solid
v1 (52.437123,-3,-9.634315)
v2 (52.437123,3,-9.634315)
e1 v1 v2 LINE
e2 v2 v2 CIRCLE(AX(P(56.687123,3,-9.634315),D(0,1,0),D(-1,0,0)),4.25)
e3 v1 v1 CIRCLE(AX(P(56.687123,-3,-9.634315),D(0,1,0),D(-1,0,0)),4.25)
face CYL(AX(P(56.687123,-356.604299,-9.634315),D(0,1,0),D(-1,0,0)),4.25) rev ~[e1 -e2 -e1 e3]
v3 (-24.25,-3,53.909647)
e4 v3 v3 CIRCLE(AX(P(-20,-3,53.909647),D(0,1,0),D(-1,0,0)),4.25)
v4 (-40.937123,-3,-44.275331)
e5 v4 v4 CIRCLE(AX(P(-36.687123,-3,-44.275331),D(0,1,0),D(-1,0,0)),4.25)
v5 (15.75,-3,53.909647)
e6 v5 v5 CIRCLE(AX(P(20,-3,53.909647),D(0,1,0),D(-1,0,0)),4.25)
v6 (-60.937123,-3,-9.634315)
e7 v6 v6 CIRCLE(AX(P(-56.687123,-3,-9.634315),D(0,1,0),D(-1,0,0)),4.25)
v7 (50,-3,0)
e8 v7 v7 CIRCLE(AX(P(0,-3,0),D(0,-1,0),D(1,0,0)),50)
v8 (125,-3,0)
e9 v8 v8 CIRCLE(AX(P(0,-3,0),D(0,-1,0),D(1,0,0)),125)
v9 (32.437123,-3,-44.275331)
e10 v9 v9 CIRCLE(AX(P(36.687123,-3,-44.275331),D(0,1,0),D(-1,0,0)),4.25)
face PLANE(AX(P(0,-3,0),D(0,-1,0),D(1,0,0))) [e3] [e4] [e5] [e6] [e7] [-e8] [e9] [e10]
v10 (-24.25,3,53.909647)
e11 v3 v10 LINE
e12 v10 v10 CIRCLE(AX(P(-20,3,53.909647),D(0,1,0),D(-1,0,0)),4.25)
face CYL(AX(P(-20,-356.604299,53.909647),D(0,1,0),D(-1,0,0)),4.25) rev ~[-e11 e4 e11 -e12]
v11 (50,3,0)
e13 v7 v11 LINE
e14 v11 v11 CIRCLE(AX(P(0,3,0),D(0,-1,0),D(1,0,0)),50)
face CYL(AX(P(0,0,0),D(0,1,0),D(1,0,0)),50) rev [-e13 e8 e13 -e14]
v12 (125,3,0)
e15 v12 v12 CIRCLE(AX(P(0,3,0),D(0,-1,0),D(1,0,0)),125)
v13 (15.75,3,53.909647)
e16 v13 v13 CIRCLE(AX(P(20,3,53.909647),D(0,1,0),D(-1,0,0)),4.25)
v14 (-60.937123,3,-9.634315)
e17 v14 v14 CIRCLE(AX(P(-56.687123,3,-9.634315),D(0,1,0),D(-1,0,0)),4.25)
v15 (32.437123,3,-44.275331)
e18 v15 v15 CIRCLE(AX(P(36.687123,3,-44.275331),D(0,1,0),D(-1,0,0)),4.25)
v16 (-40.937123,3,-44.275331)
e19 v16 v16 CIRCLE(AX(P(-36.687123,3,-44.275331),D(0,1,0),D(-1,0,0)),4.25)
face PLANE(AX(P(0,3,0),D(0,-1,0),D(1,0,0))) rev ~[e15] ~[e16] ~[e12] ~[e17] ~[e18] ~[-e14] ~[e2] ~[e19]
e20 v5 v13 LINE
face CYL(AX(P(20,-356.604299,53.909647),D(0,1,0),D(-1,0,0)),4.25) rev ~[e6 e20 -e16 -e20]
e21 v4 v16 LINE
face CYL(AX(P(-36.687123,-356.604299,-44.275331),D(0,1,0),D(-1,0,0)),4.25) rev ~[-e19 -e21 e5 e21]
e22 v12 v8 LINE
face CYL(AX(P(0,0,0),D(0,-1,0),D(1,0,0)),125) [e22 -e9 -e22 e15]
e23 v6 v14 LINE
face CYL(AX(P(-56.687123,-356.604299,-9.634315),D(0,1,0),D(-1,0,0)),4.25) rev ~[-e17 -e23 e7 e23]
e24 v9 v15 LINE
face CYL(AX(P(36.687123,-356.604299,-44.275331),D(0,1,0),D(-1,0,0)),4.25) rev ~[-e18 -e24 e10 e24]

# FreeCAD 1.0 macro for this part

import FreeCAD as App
import Part
import Sketcher

V = App.Vector

doc = App.newDocument("Part")
body = doc.addObject("PartDesign::Body", "Body")

sketch1 = body.newObject("Sketcher::SketchObject", "Sketch")
sketch1.AttachmentSupport = (doc.getObject("XZ_Plane"), [""])
sketch1.MapMode = "FlatFace"
sketch1.addGeometry([
    Part.Circle(V(0, 0, 0), V(0, 0, 1), 125),
    Part.Circle(V(0, 0, 0), V(0, 0, 1), 50),
], False)
sketch1.addConstraint([
    Sketcher.Constraint("Coincident", 0, 3, -1, 1),
    Sketcher.Constraint("Coincident", 1, 3, -1, 1),
    Sketcher.Constraint("Diameter", 0, 250.0),
    Sketcher.Constraint("Diameter", 1, 100.0),
])
pad1 = body.newObject("PartDesign::Pad", "Pad")
pad1.Profile = sketch1
pad1.Length = 6
pad1.Midplane = True

sketch2 = body.newObject("Sketcher::SketchObject", "Sketch001")
sketch2.AttachmentSupport = (doc.getObject("XZ_Plane"), [""])
sketch2.MapMode = "FlatFace"
sketch2.AttachmentOffset = App.Placement(V(0, 0, 3), App.Rotation())
sketch2.addGeometry([
    Part.Circle(V(-20, 53.9, 0), V(0, 0, 1), 4.2),
    Part.Circle(V(20, 53.9, 0), V(0, 0, 1), 4.2),
    Part.Circle(V(56.7, -9.6, 0), V(0, 0, 1), 4.2),
    Part.Circle(V(36.7, -44.3, 0), V(0, 0, 1), 4.2),
    Part.Circle(V(-36.7, -44.3, 0), V(0, 0, 1), 4.2),
    Part.Circle(V(-56.7, -9.6, 0), V(0, 0, 1), 4.2),
], False)
sketch2.addConstraint([
    Sketcher.Constraint("Equal", 0, 1),
    Sketcher.Constraint("Equal", 1, 2),
    Sketcher.Constraint("Equal", 2, 3),
    Sketcher.Constraint("Equal", 3, 4),
    Sketcher.Constraint("Equal", 4, 5),
    Sketcher.Constraint("Symmetric", 0, 3, 1, 3, -2),
    Sketcher.Constraint("Symmetric", 3, 3, 4, 3, -2),
    Sketcher.Constraint("Symmetric", 2, 3, 5, 3, -2),
    Sketcher.Constraint("Diameter", 0, 8.5),
    Sketcher.Constraint("DistanceX", 0, 3, -1, 1, 20.0),
    Sketcher.Constraint("DistanceX", 3, 3, 2, 3, 20.0),
    Sketcher.Constraint("DistanceY", 3, 3, -1, 1, 44.275331),
    Sketcher.Constraint("DistanceY", 3, 3, 1, 3, 98.184978),
    Sketcher.Constraint("DistanceX", -1, 1, 2, 3, 56.687123),
    Sketcher.Constraint("DistanceY", 2, 3, -1, 1, 9.634315),
])
doc.recompute()
hole = body.newObject("PartDesign::Hole", "Hole")
hole.Profile = sketch2
hole.ThreadType = "None"
hole.Diameter = 8.5
hole.DepthType = "ThroughAll"

doc.recompute()
